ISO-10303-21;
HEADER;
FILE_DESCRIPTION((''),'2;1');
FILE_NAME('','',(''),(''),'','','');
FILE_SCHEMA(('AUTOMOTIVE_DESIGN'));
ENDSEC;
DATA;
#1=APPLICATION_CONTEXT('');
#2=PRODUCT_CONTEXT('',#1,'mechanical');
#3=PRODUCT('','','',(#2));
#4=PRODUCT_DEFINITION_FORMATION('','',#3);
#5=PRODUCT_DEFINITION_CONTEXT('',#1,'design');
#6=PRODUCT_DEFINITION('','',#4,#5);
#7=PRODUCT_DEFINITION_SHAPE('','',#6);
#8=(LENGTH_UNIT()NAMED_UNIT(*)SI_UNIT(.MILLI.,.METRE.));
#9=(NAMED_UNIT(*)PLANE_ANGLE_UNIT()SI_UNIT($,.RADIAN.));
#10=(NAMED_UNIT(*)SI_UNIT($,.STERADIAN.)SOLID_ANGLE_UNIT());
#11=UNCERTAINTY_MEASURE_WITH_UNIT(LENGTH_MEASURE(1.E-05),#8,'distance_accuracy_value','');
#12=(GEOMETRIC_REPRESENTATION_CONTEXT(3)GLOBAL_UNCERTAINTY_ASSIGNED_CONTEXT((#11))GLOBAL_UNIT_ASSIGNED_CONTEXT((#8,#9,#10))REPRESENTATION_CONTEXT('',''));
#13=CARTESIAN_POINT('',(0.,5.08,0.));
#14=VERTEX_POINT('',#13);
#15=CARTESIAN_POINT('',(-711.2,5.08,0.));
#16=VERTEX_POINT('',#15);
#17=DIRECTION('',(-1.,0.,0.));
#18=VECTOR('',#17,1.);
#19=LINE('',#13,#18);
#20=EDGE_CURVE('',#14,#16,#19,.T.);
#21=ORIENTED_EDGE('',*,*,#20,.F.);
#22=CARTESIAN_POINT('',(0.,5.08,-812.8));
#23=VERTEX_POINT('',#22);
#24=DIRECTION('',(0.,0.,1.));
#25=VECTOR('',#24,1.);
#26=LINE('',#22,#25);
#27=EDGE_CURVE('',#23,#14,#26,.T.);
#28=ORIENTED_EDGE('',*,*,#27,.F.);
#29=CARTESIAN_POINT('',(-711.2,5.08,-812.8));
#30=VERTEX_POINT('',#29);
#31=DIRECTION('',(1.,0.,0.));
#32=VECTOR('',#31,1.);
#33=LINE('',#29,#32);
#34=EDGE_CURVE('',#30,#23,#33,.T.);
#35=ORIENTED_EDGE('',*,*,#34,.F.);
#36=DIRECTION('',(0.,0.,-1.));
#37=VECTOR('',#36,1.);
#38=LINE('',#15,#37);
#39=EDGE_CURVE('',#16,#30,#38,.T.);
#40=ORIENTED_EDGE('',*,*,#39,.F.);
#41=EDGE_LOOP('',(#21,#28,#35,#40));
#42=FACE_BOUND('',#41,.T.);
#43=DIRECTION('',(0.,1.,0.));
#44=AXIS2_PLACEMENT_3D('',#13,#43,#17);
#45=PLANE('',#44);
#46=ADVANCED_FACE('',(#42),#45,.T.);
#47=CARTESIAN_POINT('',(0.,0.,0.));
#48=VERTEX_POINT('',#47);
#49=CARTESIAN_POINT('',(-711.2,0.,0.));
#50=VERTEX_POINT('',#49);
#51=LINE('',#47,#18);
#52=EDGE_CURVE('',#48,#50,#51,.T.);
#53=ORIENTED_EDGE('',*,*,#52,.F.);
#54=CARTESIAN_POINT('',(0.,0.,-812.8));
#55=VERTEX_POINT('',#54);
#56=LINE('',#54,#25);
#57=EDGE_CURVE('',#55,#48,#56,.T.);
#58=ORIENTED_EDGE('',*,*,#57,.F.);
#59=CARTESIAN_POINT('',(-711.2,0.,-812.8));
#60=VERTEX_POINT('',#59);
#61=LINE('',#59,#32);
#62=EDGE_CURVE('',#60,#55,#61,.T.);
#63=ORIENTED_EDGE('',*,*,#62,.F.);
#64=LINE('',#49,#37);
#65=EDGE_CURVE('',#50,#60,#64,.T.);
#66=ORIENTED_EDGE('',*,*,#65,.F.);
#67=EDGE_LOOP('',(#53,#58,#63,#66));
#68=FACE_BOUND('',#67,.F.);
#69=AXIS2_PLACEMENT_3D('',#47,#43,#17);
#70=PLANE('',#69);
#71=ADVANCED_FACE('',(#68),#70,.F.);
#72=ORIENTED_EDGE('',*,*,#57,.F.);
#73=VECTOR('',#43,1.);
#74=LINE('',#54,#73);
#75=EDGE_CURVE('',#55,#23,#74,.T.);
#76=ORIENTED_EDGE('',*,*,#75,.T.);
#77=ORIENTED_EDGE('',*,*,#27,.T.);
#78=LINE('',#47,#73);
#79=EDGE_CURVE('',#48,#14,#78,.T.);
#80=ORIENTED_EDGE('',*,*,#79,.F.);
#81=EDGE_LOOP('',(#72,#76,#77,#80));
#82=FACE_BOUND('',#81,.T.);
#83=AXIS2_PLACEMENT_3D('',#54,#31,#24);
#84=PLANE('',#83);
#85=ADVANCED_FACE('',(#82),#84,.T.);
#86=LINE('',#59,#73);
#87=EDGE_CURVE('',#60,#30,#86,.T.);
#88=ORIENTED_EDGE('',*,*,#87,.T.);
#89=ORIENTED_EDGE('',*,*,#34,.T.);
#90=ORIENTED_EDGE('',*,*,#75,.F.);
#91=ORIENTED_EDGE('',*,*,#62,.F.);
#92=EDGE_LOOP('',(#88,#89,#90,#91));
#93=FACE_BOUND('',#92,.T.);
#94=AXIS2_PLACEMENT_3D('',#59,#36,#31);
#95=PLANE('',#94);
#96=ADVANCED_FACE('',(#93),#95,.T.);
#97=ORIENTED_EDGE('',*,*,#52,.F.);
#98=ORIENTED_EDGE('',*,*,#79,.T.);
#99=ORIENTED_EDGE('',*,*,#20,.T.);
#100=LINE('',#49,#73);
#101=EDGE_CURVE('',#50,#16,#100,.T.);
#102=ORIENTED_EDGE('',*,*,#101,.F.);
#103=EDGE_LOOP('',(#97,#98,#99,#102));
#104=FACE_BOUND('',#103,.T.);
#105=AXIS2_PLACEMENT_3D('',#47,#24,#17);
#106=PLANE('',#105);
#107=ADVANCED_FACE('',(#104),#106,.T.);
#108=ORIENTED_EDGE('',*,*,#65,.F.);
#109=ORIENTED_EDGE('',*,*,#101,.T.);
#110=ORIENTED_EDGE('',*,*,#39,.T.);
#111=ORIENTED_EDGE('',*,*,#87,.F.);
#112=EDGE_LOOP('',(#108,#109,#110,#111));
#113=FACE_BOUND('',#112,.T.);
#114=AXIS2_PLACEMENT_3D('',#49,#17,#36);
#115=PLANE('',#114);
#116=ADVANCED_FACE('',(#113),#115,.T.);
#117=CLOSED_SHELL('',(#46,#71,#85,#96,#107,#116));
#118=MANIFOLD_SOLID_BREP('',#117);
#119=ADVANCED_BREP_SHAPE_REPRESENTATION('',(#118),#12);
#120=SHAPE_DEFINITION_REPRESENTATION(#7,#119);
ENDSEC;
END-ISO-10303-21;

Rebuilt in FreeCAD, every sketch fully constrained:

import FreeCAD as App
import Part
import Sketcher

V = App.Vector
Q = App.Units.Quantity


def add_polygon(sketch, points):
    """Adds a closed chain of lines whose ends are joined by coincident constraints."""
    first, n = sketch.GeometryCount, len(points)
    for a, b in zip(points, points[1:] + points[:1]):
        sketch.addGeometry(Part.LineSegment(App.Vector(*a, 0), App.Vector(*b, 0)), False)
    for i in range(n):
        sketch.addConstraint(Sketcher.Constraint("Coincident", first + i, 2, first + (i + 1) % n, 1))

doc = App.newDocument("Part")
body = doc.addObject("PartDesign::Body", "Body")

# Sketch on XZ plane
sketch1 = body.newObject("Sketcher::SketchObject", "Sketch")
sketch1.AttachmentSupport = (doc.getObject("XZ_Plane"), [""])
sketch1.MapMode = "FlatFace"
add_polygon(sketch1, [(-711, 0), (0, 0), (0, -813), (-711, -813)])  # lines 0-3
sketch1.addConstraint([
    Sketcher.Constraint("Horizontal", 0),
    Sketcher.Constraint("Vertical", 1),
    Sketcher.Constraint("Horizontal", 2),
    Sketcher.Constraint("Vertical", 3),
    Sketcher.Constraint("Coincident", 0, 2, -1, 1),
    Sketcher.Constraint("DistanceX", 0, 1, 0, 2, Q("28 in")),
    Sketcher.Constraint("DistanceY", 1, 2, 1, 1, Q("32 in")),
])
pad1 = body.newObject("PartDesign::Pad", "Pad")
pad1.Profile = sketch1
pad1.Length = Q("0.2 in")
pad1.Reversed = True

doc.recompute()
